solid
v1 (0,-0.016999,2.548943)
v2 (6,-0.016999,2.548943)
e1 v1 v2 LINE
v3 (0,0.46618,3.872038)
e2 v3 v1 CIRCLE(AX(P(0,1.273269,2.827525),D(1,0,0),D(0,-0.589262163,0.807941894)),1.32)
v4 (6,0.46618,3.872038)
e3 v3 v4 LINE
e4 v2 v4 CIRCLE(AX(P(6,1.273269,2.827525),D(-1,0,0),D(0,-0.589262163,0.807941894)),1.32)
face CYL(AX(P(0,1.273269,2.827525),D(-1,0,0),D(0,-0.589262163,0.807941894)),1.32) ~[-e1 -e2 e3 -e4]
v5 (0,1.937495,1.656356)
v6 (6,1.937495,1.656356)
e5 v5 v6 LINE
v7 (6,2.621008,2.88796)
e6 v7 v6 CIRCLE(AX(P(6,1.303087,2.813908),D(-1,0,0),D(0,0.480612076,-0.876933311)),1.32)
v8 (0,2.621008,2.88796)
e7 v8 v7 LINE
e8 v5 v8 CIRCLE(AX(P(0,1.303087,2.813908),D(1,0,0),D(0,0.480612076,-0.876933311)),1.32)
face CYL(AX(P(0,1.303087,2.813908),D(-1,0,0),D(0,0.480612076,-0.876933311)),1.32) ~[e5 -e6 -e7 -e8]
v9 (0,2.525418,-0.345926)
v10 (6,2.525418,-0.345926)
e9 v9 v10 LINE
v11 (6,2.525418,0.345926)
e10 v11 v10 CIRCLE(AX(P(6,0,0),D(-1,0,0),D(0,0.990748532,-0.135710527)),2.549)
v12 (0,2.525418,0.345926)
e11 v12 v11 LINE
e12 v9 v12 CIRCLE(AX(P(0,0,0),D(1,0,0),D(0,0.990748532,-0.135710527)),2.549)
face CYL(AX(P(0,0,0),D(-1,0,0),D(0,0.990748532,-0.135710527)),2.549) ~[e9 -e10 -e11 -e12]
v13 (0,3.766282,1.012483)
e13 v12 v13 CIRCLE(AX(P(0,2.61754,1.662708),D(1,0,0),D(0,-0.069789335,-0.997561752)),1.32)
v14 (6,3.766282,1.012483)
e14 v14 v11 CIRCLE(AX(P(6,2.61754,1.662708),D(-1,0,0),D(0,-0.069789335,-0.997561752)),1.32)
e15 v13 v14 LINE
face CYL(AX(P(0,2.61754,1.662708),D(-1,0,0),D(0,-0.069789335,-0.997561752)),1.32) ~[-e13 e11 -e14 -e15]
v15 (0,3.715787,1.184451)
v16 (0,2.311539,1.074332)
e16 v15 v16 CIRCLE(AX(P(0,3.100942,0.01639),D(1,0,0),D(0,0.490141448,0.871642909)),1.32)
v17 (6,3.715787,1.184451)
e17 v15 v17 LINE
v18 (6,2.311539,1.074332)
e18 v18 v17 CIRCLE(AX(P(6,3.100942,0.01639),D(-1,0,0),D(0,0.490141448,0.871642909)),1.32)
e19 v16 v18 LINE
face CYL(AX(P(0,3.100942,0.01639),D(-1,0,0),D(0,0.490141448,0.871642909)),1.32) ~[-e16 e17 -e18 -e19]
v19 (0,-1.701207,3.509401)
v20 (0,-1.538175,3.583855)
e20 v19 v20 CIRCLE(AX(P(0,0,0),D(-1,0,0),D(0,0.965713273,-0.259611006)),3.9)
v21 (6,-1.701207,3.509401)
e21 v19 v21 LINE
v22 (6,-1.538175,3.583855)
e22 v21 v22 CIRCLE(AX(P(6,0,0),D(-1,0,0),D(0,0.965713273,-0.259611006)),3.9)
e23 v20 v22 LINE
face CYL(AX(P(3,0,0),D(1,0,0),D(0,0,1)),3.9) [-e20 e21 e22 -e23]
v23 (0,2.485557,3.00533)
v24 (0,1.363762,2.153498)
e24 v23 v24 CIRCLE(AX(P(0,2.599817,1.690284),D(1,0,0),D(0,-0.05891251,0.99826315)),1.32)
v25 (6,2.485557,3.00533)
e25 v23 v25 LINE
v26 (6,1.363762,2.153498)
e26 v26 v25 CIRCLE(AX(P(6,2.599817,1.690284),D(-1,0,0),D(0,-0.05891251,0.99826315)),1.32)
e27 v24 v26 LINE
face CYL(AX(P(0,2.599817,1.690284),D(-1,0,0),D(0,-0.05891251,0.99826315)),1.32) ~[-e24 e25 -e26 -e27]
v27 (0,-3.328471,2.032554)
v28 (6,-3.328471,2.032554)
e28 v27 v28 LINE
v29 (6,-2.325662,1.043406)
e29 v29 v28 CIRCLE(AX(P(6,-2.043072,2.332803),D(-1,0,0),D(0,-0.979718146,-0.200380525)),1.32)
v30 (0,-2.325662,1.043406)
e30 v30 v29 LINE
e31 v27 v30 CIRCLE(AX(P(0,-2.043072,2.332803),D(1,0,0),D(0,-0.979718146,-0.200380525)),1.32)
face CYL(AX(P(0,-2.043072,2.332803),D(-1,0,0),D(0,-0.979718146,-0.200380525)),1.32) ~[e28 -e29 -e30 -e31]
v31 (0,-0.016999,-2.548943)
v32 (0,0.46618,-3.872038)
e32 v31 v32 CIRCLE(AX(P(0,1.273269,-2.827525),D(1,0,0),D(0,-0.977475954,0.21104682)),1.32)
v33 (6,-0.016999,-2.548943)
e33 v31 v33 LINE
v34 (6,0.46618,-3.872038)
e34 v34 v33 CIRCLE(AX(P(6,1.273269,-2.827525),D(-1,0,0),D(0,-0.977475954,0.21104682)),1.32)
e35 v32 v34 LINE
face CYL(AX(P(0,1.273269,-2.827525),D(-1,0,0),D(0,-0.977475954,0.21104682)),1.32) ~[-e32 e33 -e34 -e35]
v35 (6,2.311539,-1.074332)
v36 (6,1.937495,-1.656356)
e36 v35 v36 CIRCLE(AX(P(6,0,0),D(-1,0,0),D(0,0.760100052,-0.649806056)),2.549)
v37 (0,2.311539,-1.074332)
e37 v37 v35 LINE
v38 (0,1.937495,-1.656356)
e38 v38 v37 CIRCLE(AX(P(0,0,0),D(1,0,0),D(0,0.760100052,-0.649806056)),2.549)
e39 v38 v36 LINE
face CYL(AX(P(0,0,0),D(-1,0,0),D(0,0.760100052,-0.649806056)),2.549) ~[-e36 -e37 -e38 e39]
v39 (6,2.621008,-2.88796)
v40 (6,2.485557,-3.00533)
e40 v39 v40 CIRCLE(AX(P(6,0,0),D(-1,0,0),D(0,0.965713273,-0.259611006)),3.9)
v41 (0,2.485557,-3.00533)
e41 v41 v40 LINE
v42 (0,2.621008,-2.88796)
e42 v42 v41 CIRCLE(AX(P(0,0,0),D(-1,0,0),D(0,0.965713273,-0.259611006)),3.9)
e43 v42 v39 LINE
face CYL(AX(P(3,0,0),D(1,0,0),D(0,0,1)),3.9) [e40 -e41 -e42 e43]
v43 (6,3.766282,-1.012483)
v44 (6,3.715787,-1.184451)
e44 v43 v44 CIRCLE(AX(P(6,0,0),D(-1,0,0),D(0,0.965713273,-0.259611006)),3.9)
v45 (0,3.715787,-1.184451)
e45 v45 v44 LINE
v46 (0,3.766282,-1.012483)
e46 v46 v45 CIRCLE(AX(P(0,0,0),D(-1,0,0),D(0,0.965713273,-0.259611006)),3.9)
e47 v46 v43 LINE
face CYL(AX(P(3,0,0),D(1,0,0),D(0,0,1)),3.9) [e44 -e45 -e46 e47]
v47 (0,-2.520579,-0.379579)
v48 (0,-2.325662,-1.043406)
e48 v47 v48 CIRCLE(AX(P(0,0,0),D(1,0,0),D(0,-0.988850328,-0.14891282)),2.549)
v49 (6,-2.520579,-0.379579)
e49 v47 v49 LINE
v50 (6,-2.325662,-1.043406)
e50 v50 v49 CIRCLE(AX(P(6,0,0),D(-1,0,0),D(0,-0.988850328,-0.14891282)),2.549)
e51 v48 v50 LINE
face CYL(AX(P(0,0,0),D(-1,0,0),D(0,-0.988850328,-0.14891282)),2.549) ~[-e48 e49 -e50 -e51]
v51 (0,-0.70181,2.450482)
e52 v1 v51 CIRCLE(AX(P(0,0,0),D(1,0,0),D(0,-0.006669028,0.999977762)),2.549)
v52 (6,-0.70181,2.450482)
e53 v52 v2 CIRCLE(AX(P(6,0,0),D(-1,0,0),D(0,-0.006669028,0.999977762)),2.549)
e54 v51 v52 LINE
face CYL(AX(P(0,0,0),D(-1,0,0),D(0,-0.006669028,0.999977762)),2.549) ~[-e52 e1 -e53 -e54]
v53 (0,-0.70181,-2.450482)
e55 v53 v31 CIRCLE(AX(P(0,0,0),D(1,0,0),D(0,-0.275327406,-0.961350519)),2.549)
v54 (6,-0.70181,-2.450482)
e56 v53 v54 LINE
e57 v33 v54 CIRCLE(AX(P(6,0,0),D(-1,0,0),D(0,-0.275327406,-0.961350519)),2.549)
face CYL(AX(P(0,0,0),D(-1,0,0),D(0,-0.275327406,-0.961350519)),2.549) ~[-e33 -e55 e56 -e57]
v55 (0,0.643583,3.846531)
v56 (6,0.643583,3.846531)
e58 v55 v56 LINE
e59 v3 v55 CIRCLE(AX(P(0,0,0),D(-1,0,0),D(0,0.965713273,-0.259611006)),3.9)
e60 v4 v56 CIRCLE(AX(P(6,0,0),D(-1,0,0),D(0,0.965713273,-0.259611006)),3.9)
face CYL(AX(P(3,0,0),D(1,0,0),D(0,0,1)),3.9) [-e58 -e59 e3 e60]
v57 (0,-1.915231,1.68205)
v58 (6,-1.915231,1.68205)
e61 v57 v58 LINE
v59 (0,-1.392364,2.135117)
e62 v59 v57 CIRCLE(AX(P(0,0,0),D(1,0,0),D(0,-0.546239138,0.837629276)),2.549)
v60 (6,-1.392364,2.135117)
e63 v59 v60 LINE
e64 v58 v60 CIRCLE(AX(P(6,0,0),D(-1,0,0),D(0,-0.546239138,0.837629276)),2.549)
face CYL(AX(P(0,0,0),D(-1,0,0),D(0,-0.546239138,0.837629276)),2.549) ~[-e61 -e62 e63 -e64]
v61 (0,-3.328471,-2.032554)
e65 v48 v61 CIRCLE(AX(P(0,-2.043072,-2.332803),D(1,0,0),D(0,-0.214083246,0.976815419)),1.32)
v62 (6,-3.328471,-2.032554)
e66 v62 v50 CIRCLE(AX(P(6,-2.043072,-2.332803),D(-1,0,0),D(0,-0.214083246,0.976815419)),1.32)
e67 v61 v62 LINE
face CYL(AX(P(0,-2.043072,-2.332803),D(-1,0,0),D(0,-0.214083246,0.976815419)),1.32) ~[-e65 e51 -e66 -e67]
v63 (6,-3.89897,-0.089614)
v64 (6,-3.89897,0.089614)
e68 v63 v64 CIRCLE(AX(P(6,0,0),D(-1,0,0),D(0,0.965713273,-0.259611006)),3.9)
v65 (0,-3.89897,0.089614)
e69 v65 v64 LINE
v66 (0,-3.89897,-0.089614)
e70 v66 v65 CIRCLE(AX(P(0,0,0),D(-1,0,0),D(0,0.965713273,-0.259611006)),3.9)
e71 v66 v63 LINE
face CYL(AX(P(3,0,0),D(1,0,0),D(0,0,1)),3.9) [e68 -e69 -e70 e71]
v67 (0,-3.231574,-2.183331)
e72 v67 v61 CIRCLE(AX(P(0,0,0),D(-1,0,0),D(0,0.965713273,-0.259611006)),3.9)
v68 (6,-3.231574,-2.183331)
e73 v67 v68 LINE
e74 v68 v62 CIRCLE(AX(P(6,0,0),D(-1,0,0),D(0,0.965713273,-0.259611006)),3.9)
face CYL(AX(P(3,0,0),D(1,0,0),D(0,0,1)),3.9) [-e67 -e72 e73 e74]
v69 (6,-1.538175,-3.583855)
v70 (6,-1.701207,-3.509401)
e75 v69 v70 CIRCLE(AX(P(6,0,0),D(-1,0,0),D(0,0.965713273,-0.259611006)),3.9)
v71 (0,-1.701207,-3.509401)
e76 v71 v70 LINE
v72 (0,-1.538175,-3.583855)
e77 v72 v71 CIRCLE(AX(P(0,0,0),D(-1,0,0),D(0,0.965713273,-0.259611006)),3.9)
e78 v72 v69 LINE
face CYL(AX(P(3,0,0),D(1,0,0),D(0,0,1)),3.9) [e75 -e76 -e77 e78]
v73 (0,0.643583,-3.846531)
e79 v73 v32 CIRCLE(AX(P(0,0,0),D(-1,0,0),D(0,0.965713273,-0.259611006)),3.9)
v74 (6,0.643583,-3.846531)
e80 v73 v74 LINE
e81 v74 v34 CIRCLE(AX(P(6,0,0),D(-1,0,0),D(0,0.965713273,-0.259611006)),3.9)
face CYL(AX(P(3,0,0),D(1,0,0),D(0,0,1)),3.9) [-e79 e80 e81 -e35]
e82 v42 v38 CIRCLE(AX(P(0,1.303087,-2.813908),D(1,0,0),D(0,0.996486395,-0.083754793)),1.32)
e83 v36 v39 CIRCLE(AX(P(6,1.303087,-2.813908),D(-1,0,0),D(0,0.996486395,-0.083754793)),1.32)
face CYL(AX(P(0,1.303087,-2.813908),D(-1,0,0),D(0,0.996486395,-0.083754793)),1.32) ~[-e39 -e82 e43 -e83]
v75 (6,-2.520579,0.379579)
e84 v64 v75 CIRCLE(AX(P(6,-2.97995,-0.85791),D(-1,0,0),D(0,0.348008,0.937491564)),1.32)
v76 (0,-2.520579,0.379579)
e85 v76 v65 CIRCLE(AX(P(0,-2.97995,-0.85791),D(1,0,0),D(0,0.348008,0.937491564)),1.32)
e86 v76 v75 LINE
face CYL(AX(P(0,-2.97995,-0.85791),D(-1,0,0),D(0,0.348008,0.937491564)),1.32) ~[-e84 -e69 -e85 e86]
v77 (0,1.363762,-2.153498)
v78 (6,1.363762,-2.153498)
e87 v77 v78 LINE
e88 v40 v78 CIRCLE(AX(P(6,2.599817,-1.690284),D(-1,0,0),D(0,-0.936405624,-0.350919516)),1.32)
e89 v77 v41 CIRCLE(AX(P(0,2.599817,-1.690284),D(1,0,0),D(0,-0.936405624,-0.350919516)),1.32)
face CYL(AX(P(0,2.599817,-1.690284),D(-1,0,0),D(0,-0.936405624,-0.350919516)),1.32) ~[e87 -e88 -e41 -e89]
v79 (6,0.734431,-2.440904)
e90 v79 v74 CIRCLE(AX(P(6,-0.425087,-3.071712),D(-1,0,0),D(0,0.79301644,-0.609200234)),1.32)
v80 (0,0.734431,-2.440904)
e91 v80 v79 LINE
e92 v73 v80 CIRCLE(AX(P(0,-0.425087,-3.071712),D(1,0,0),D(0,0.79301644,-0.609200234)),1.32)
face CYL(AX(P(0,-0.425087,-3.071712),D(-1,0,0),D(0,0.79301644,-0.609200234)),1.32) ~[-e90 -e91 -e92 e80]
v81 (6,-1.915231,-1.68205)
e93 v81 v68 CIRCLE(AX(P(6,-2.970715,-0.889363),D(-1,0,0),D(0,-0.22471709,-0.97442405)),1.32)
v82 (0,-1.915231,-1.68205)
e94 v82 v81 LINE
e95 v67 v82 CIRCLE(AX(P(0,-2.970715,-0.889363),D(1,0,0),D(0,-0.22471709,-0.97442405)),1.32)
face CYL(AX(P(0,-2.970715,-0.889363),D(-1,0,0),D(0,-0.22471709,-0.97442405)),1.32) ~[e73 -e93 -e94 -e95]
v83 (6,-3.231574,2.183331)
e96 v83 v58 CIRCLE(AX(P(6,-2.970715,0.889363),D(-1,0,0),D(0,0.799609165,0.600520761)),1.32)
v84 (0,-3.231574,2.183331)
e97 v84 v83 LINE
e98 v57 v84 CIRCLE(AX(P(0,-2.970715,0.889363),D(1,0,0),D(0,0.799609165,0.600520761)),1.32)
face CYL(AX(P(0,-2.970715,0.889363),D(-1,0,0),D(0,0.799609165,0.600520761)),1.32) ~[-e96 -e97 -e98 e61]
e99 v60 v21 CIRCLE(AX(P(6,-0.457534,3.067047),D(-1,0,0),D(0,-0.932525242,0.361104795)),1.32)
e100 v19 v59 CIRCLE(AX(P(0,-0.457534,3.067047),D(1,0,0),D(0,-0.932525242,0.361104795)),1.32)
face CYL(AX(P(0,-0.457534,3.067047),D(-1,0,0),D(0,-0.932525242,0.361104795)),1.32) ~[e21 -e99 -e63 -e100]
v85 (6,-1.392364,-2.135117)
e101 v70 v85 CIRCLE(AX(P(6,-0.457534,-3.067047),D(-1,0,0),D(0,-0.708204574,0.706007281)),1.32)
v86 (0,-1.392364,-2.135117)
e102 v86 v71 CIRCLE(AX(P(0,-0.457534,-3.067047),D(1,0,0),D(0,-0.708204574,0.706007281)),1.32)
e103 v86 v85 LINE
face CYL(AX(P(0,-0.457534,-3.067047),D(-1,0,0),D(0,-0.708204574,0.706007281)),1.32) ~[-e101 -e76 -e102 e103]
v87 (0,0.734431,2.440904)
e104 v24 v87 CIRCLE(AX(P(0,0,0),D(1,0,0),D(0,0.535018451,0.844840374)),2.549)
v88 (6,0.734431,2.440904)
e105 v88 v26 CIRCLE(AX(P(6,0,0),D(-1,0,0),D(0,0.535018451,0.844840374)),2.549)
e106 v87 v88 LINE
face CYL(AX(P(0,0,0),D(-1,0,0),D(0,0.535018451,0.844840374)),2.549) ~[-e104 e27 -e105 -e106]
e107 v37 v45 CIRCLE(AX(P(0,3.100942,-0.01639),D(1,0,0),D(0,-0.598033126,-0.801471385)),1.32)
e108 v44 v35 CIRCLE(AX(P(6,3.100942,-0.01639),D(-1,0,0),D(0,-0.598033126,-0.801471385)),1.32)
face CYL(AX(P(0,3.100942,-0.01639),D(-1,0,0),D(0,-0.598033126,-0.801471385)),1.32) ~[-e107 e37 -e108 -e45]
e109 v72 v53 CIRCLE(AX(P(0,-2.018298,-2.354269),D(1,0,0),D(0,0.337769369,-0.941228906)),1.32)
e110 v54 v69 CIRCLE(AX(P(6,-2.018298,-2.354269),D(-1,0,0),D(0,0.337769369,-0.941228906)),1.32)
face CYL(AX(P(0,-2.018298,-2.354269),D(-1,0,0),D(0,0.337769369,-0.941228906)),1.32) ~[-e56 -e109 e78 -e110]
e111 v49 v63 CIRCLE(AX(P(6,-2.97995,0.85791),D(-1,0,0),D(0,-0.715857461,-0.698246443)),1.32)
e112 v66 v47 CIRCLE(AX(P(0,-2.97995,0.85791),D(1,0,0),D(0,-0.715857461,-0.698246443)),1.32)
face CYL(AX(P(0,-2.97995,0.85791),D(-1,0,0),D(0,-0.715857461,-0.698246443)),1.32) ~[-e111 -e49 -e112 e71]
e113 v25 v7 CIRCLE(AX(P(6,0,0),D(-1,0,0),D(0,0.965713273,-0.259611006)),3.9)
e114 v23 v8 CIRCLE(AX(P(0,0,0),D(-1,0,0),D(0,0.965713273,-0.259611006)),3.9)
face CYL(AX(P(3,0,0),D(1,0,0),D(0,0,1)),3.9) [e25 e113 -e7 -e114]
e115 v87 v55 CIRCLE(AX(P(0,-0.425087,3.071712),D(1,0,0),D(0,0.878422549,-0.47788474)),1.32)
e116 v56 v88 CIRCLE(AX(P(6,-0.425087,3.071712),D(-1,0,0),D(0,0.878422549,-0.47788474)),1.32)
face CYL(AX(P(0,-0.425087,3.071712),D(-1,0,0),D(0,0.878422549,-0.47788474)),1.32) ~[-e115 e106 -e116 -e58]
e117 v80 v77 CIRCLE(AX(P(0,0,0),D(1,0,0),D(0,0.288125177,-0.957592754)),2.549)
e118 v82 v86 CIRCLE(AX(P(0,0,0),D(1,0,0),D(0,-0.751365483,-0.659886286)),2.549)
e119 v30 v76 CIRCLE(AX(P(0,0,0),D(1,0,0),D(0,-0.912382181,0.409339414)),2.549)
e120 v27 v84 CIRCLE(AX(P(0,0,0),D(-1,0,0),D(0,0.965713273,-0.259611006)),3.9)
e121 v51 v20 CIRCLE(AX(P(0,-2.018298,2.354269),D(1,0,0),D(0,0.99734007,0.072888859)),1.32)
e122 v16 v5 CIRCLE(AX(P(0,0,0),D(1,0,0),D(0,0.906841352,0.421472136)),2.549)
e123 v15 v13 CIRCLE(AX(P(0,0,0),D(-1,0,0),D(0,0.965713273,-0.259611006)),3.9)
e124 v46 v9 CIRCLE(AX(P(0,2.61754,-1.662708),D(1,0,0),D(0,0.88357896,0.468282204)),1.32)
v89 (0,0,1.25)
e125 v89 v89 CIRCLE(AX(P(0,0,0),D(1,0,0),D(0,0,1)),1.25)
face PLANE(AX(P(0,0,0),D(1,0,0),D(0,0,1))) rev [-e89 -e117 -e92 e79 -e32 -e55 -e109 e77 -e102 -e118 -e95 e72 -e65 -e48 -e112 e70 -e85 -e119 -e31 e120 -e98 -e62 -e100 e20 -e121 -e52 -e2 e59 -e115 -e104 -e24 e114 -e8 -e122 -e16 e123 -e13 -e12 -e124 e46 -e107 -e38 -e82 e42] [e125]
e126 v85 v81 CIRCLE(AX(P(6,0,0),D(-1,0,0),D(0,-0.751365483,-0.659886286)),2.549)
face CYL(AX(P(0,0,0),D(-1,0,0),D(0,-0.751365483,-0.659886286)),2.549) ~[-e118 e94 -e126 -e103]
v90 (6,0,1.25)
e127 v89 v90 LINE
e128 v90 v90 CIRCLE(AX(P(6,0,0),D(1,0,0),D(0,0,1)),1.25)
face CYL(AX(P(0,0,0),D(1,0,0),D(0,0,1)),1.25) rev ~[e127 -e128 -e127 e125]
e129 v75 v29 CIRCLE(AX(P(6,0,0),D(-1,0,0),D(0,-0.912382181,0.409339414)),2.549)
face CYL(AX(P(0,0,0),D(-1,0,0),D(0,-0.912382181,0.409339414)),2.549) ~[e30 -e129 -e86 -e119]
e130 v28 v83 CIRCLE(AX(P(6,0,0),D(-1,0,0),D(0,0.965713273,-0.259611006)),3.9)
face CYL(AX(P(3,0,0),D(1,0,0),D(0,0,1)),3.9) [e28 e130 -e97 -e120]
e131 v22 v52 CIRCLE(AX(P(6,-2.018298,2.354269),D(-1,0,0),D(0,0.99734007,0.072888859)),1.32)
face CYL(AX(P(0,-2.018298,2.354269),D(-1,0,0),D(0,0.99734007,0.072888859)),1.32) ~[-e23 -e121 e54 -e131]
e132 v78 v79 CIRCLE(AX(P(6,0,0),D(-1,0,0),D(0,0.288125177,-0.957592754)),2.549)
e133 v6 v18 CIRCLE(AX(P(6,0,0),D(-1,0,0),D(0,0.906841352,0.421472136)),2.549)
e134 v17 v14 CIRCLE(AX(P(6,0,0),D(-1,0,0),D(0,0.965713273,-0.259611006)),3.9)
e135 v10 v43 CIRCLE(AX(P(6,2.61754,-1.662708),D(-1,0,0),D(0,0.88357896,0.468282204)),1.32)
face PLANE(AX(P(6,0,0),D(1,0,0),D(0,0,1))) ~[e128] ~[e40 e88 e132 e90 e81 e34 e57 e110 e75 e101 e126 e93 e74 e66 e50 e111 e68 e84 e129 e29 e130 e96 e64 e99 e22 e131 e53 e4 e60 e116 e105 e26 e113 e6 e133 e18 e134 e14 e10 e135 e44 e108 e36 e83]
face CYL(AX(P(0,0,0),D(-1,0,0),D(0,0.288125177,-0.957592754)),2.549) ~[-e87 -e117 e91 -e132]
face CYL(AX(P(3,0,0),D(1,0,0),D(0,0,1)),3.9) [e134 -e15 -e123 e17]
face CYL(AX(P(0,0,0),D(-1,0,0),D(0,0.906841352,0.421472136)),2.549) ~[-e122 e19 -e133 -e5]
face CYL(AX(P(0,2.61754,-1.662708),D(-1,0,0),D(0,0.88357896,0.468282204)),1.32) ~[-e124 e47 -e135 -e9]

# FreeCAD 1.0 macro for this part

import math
import FreeCAD as App
import Part
import Sketcher
from FreeCAD import Vector

doc = App.newDocument("Part")
body = doc.addObject("PartDesign::Body", "Body")

# Sketch on XZ plane
sketch1 = body.newObject("Sketcher::SketchObject", "Sketch")
sketch1.AttachmentSupport = (doc.getObject("XZ_Plane"), [""])
sketch1.MapMode = "FlatFace"
sketch1.addGeometry([
    Part.LineSegment(Vector(0, -3.9, 0), Vector(0, 0, 0)),
    Part.LineSegment(Vector(0, 0, 0), Vector(6, 0, 0)),
    Part.LineSegment(Vector(6, 0, 0), Vector(6, -3.9, 0)),
    Part.LineSegment(Vector(6, -3.9, 0), Vector(0, -3.9, 0)),
], False)
sketch1.addConstraint([
    Sketcher.Constraint("Coincident", 0, 2, 1, 1),
    Sketcher.Constraint("Coincident", 1, 2, 2, 1),
    Sketcher.Constraint("Coincident", 2, 2, 3, 1),
    Sketcher.Constraint("Coincident", 3, 2, 0, 1),
    Sketcher.Constraint("Vertical", 0),
    Sketcher.Constraint("Horizontal", 1),
    Sketcher.Constraint("Vertical", 2),
    Sketcher.Constraint("Horizontal", 3),
    Sketcher.Constraint("Coincident", 0, 2, -1, 1),
    Sketcher.Constraint("DistanceX", 1, 1, 1, 2, 6.0),
    Sketcher.Constraint("DistanceY", 0, 1, 0, 2, 3.9),
])
revolution = body.newObject("PartDesign::Revolution", "Revolution")
revolution.Profile = sketch1
revolution.ReferenceAxis = (sketch1, ["H_Axis"])
revolution.Angle = 360

# Sketch on YZ plane
sketch2 = body.newObject("Sketcher::SketchObject", "Sketch001")
sketch2.AttachmentSupport = (doc.getObject("YZ_Plane"), [""])
sketch2.MapMode = "FlatFace"
sketch2.addGeometry([
    Part.ArcOfCircle(Part.Circle(Vector(0, 0, 0), Vector(0, 0, 1), 2.549), math.radians(-7.799708), math.radians(7.799708)),
    Part.ArcOfCircle(Part.Circle(Vector(2.61754, -1.662708, 0), Vector(0, 0, 1), 1.32), math.radians(27.922848), math.radians(94.001887)),
    Part.ArcOfCircle(Part.Circle(Vector(0, 0, 0), Vector(0, 0, 1), 3.9254), math.radians(-15.432722), math.radians(15.432722)),
    Part.ArcOfCircle(Part.Circle(Vector(2.61754, 1.662708, 0), Vector(0, 0, 1), 1.32), math.radians(-94.001887), math.radians(-27.922848)),
], False)
sketch2.addConstraint([
    Sketcher.Constraint("Coincident", 0, 1, 1, 2),
    Sketcher.Constraint("Coincident", 1, 1, 2, 1),
    Sketcher.Constraint("Coincident", 2, 2, 3, 2),
    Sketcher.Constraint("Coincident", 3, 1, 0, 2),
    Sketcher.Constraint("Coincident", 0, 3, -1, 1),
    Sketcher.Constraint("Coincident", 2, 3, -1, 1),
    Sketcher.Constraint("Equal", 1, 3),
    Sketcher.Constraint("Symmetric", 1, 3, 3, 3, -1),
    Sketcher.Constraint("Radius", 1, 1.32),
    Sketcher.Constraint("Radius", 0, 2.549),
    Sketcher.Constraint("Radius", 2, 3.9254),
    Sketcher.Constraint("DistanceY", 0, 1, 2, 2, 1.390501),
    Sketcher.Constraint("DistanceX", -1, 1, 1, 3, 2.61754),
])
pocket1 = body.newObject("PartDesign::Pocket", "Pocket")
pocket1.Profile = sketch2
pocket1.Type = "ThroughAll"
pocket1.Reversed = True
doc.recompute()

polarpattern = body.newObject("PartDesign::PolarPattern", "PolarPattern")
polarpattern.Originals = [pocket1]
polarpattern.Axis = (doc.getObject("X_Axis"), [""])
polarpattern.Angle = 360
polarpattern.Occurrences = 11
body.Tip = polarpattern

# Sketch on YZ plane
sketch3 = body.newObject("Sketcher::SketchObject", "Sketch002")
sketch3.AttachmentSupport = (doc.getObject("YZ_Plane"), [""])
sketch3.MapMode = "FlatFace"
sketch3.addGeometry(Part.Circle(Vector(0, 0, 0), Vector(0, 0, 1), 1.25), False)
sketch3.addConstraint([
    Sketcher.Constraint("Coincident", 0, 3, -1, 1),
    Sketcher.Constraint("Diameter", 0, 2.5),
])
pocket2 = body.newObject("PartDesign::Pocket", "Pocket001")
pocket2.Profile = sketch3
pocket2.Length = 100.000305
pocket2.Midplane = True

doc.recompute()
